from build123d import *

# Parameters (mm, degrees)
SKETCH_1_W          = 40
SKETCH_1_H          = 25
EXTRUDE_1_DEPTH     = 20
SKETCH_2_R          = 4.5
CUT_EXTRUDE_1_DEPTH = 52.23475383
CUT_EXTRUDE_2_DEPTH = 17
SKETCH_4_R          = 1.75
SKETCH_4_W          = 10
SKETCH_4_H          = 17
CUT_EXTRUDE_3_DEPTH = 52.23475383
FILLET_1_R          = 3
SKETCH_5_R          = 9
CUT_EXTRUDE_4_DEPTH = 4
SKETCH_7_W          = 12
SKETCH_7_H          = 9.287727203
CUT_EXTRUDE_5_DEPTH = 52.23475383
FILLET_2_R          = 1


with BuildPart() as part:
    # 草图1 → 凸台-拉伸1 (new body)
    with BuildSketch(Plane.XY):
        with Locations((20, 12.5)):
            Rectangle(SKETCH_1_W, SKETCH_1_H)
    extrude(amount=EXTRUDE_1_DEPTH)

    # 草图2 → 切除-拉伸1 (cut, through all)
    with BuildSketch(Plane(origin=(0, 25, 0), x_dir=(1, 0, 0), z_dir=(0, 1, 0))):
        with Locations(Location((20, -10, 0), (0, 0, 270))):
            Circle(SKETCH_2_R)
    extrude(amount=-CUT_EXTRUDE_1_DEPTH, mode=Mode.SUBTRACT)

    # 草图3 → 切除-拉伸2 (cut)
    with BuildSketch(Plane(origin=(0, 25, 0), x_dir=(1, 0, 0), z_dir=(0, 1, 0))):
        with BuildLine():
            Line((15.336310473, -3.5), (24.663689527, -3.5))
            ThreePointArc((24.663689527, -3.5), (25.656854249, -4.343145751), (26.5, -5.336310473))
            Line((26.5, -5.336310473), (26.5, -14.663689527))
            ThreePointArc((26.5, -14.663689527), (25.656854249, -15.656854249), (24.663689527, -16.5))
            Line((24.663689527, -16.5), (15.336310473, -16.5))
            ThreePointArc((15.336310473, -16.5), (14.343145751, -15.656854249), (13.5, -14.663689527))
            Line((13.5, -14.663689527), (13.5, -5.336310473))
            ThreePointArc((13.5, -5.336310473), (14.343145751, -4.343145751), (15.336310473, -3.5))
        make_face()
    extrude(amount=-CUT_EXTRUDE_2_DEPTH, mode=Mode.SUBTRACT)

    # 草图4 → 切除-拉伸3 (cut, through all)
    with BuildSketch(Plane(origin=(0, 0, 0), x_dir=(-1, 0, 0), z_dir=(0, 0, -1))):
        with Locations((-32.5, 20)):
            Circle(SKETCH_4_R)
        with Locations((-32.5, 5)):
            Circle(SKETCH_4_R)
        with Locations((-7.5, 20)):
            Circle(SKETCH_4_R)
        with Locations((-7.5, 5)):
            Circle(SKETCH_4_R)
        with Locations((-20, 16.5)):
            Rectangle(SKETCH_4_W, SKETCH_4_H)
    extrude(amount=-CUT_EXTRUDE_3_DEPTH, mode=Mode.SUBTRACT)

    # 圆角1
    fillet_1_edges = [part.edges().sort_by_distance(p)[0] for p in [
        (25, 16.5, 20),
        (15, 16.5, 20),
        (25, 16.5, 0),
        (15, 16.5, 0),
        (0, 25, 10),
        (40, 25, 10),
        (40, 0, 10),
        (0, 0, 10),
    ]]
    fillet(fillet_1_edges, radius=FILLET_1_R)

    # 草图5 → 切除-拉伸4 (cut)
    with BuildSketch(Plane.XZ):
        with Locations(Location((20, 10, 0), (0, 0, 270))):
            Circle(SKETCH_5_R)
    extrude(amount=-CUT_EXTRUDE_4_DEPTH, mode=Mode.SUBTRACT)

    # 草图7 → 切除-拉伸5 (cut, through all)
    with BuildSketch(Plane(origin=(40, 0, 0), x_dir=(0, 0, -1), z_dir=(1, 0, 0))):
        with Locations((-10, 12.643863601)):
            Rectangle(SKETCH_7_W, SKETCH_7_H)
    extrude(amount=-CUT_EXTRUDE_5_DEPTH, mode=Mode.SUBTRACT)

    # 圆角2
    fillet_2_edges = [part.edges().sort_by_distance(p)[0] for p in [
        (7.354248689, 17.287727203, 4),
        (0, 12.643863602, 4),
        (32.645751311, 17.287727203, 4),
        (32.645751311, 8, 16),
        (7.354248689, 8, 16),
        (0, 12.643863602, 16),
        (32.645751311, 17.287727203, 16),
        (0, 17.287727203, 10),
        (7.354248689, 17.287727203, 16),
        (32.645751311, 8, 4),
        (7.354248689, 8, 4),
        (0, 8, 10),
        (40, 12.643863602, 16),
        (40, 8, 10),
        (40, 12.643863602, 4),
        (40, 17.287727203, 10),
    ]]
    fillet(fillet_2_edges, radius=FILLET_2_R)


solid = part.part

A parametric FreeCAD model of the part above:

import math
import FreeCAD as App
import Part
import Sketcher
from FreeCAD import Vector


def edges_at(feature, points):
    """Names of the edges that pass closest to the given points."""
    edges = feature.Shape.Edges
    near = lambda p: min(range(len(edges)), key=lambda i: edges[i].distToShape(Part.Vertex(*p))[0])
    return sorted({f"Edge{near(p) + 1}" for p in points})

doc = App.newDocument("Part")
body = doc.addObject("PartDesign::Body", "Body")

sketch1 = body.newObject("Sketcher::SketchObject", "Sketch")
sketch1.AttachmentSupport = (doc.getObject("XY_Plane"), [""])
sketch1.MapMode = "FlatFace"
sketch1.addGeometry(Part.LineSegment(Vector(0, 25, 0), Vector(0, 0, 0)), False)
sketch1.addGeometry(Part.LineSegment(Vector(0, 0, 0), Vector(40, 0, 0)), False)
sketch1.addGeometry(Part.LineSegment(Vector(40, 0, 0), Vector(40, 25, 0)), False)
sketch1.addGeometry(Part.LineSegment(Vector(40, 25, 0), Vector(0, 25, 0)), False)
sketch1.addConstraint(Sketcher.Constraint("Coincident", 0, 2, 1, 1))
sketch1.addConstraint(Sketcher.Constraint("Coincident", 1, 2, 2, 1))
sketch1.addConstraint(Sketcher.Constraint("Coincident", 2, 2, 3, 1))
sketch1.addConstraint(Sketcher.Constraint("Coincident", 3, 2, 0, 1))
sketch1.addConstraint(Sketcher.Constraint("Vertical", 0))
sketch1.addConstraint(Sketcher.Constraint("Horizontal", 1))
sketch1.addConstraint(Sketcher.Constraint("Vertical", 2))
sketch1.addConstraint(Sketcher.Constraint("Horizontal", 3))
sketch1.addConstraint(Sketcher.Constraint("Coincident", 0, 2, -1, 1))
sketch1.addConstraint(Sketcher.Constraint("DistanceX", 1, 1, 1, 2, 40.0))
sketch1.addConstraint(Sketcher.Constraint("DistanceY", 0, 2, 0, 1, 25.0))
pad1 = body.newObject("PartDesign::Pad", "Pad")
pad1.Profile = sketch1
pad1.Length = 20

sketch2 = body.newObject("Sketcher::SketchObject", "Sketch001")
sketch2.AttachmentSupport = (doc.getObject("XZ_Plane"), [""])
sketch2.MapMode = "FlatFace"
sketch2.AttachmentOffset = App.Placement(Vector(0, 0, -25), App.Rotation())
sketch2.addGeometry(Part.Circle(Vector(20, 10, 0), Vector(0, 0, 1), 4.5), False)
sketch2.addConstraint(Sketcher.Constraint("Diameter", 0, 9.0))
sketch2.addConstraint(Sketcher.Constraint("DistanceX", -1, 1, 0, 3, 20.0))
sketch2.addConstraint(Sketcher.Constraint("DistanceY", -1, 1, 0, 3, 10.0))
pocket1 = body.newObject("PartDesign::Pocket", "Pocket")
pocket1.Profile = sketch2
pocket1.Type = "ThroughAll"
pocket1.Reversed = True

sketch3 = body.newObject("Sketcher::SketchObject", "Sketch002")
sketch3.AttachmentSupport = (doc.getObject("XZ_Plane"), [""])
sketch3.MapMode = "FlatFace"
sketch3.AttachmentOffset = App.Placement(Vector(0, 0, -25), App.Rotation())
sketch3.addGeometry(Part.LineSegment(Vector(24.7, 3.5, 0), Vector(15.3, 3.5, 0)), False)
sketch3.addGeometry(Part.ArcOfCircle(Part.Circle(Vector(20, 10, 0), Vector(0, 0, 1), 8), math.radians(-144.34), math.radians(-125.66)), False)
sketch3.addGeometry(Part.LineSegment(Vector(13.5, 5.3, 0), Vector(13.5, 14.7, 0)), False)
sketch3.addGeometry(Part.ArcOfCircle(Part.Circle(Vector(20, 10, 0), Vector(0, 0, 1), 8), math.radians(125.66), math.radians(144.34)), False)
sketch3.addGeometry(Part.LineSegment(Vector(15.3, 16.5, 0), Vector(24.7, 16.5, 0)), False)
sketch3.addGeometry(Part.ArcOfCircle(Part.Circle(Vector(20, 10, 0), Vector(0, 0, 1), 8), math.radians(35.66), math.radians(54.34)), False)
sketch3.addGeometry(Part.LineSegment(Vector(26.5, 14.7, 0), Vector(26.5, 5.3, 0)), False)
sketch3.addGeometry(Part.ArcOfCircle(Part.Circle(Vector(20, 10, 0), Vector(0, 0, 1), 8), math.radians(-54.34), math.radians(-35.66)), False)
sketch3.addConstraint(Sketcher.Constraint("Coincident", 0, 2, 1, 2))
sketch3.addConstraint(Sketcher.Constraint("Coincident", 1, 1, 2, 1))
sketch3.addConstraint(Sketcher.Constraint("Coincident", 2, 2, 3, 2))
sketch3.addConstraint(Sketcher.Constraint("Coincident", 3, 1, 4, 1))
sketch3.addConstraint(Sketcher.Constraint("Coincident", 4, 2, 5, 2))
sketch3.addConstraint(Sketcher.Constraint("Coincident", 5, 1, 6, 1))
sketch3.addConstraint(Sketcher.Constraint("Coincident", 6, 2, 7, 2))
sketch3.addConstraint(Sketcher.Constraint("Coincident", 7, 1, 0, 1))
sketch3.addConstraint(Sketcher.Constraint("Horizontal", 0))
sketch3.addConstraint(Sketcher.Constraint("Vertical", 2))
sketch3.addConstraint(Sketcher.Constraint("Horizontal", 4))
sketch3.addConstraint(Sketcher.Constraint("Vertical", 6))
sketch3.addConstraint(Sketcher.Constraint("Coincident", 3, 3, 1, 3))
sketch3.addConstraint(Sketcher.Constraint("Coincident", 5, 3, 1, 3))
sketch3.addConstraint(Sketcher.Constraint("Coincident", 7, 3, 1, 3))
sketch3.addConstraint(Sketcher.Constraint("Equal", 1, 3))
sketch3.addConstraint(Sketcher.Constraint("Equal", 3, 5))
sketch3.addConstraint(Sketcher.Constraint("Equal", 5, 7))
sketch3.addConstraint(Sketcher.Constraint("Horizontal", 2, 2, 5, 1))
sketch3.addConstraint(Sketcher.Constraint("Vertical", 0, 2, 3, 1))
sketch3.addConstraint(Sketcher.Constraint("Equal", 4, 2))
sketch3.addConstraint(Sketcher.Constraint("Radius", 1, 8.0))
sketch3.addConstraint(Sketcher.Constraint("DistanceX", -1, 1, 1, 3, 20.0))
sketch3.addConstraint(Sketcher.Constraint("DistanceY", -1, 1, 1, 3, 10.0))
sketch3.addConstraint(Sketcher.Constraint("DistanceY", -1, 1, 0, 2, 3.5))
pocket2 = body.newObject("PartDesign::Pocket", "Pocket001")
pocket2.Profile = sketch3
pocket2.Length = 17
pocket2.Reversed = True

sketch4 = body.newObject("Sketcher::SketchObject", "Sketch003")
sketch4.AttachmentSupport = (doc.getObject("XY_Plane"), [""])
sketch4.MapMode = "FlatFace"
sketch4.addGeometry(Part.Circle(Vector(32.5, 20, 0), Vector(0, 0, 1), 1.8), False)
sketch4.addGeometry(Part.Circle(Vector(32.5, 5, 0), Vector(0, 0, 1), 1.8), False)
sketch4.addGeometry(Part.Circle(Vector(7.5, 20, 0), Vector(0, 0, 1), 1.8), False)
sketch4.addGeometry(Part.Circle(Vector(7.5, 5, 0), Vector(0, 0, 1), 1.8), False)
sketch4.addGeometry(Part.LineSegment(Vector(25, 25, 0), Vector(25, 8, 0)), False)
sketch4.addGeometry(Part.LineSegment(Vector(25, 8, 0), Vector(15, 8, 0)), False)
sketch4.addGeometry(Part.LineSegment(Vector(15, 8, 0), Vector(15, 25, 0)), False)
sketch4.addGeometry(Part.LineSegment(Vector(15, 25, 0), Vector(25, 25, 0)), False)
sketch4.addConstraint(Sketcher.Constraint("Coincident", 4, 2, 5, 1))
sketch4.addConstraint(Sketcher.Constraint("Coincident", 5, 2, 6, 1))
sketch4.addConstraint(Sketcher.Constraint("Coincident", 6, 2, 7, 1))
sketch4.addConstraint(Sketcher.Constraint("Coincident", 7, 2, 4, 1))
sketch4.addConstraint(Sketcher.Constraint("Vertical", 4))
sketch4.addConstraint(Sketcher.Constraint("Horizontal", 5))
sketch4.addConstraint(Sketcher.Constraint("Vertical", 6))
sketch4.addConstraint(Sketcher.Constraint("Horizontal", 7))
sketch4.addConstraint(Sketcher.Constraint("Equal", 0, 1))
sketch4.addConstraint(Sketcher.Constraint("Equal", 1, 2))
sketch4.addConstraint(Sketcher.Constraint("Equal", 2, 3))
sketch4.addConstraint(Sketcher.Constraint("Horizontal", 0, 3, 2, 3))
sketch4.addConstraint(Sketcher.Constraint("Horizontal", 1, 3, 3, 3))
sketch4.addConstraint(Sketcher.Constraint("Vertical", 0, 3, 1, 3))
sketch4.addConstraint(Sketcher.Constraint("Vertical", 2, 3, 3, 3))
sketch4.addConstraint(Sketcher.Constraint("Diameter", 0, 3.5))
sketch4.addConstraint(Sketcher.Constraint("DistanceX", 5, 2, 5, 1, 10.0))
sketch4.addConstraint(Sketcher.Constraint("DistanceY", 4, 2, 4, 1, 17.0))
sketch4.addConstraint(Sketcher.Constraint("DistanceY", -1, 1, 0, 3, 20.0))
sketch4.addConstraint(Sketcher.Constraint("DistanceY", -1, 1, 1, 3, 5.0))
sketch4.addConstraint(Sketcher.Constraint("DistanceX", -1, 1, 4, 2, 25.0))
sketch4.addConstraint(Sketcher.Constraint("DistanceY", -1, 1, 4, 2, 8.0))
sketch4.addConstraint(Sketcher.Constraint("DistanceX", 2, 3, 0, 3, 25.0))
sketch4.addConstraint(Sketcher.Constraint("DistanceX", -1, 1, 0, 3, 32.5))
pocket3 = body.newObject("PartDesign::Pocket", "Pocket002")
pocket3.Profile = sketch4
pocket3.Type = "ThroughAll"
pocket3.Reversed = True
doc.recompute()

fillet = body.newObject("PartDesign::Fillet", "Fillet")
fillet.Base = (pocket3, edges_at(pocket3, [
    (25, 16.5, 20),
    (15, 16.5, 20),
    (25, 16.5, 0),
    (15, 16.5, 0),
    (0, 25, 10),
    (40, 25, 10),
    (40, 0, 10),
    (0, 0, 10),
]))
fillet.Radius = 3

sketch5 = body.newObject("Sketcher::SketchObject", "Sketch004")
sketch5.AttachmentSupport = (doc.getObject("XZ_Plane"), [""])
sketch5.MapMode = "FlatFace"
sketch5.addGeometry(Part.Circle(Vector(20, 10, 0), Vector(0, 0, 1), 9), False)
sketch5.addConstraint(Sketcher.Constraint("Diameter", 0, 18.0))
sketch5.addConstraint(Sketcher.Constraint("DistanceX", -1, 1, 0, 3, 20.0))
sketch5.addConstraint(Sketcher.Constraint("DistanceY", -1, 1, 0, 3, 10.0))
pocket4 = body.newObject("PartDesign::Pocket", "Pocket003")
pocket4.Profile = sketch5
pocket4.Length = 4

sketch6 = body.newObject("Sketcher::SketchObject", "Sketch005")
sketch6.AttachmentSupport = (doc.getObject("YZ_Plane"), [""])
sketch6.MapMode = "FlatFace"
sketch6.AttachmentOffset = App.Placement(Vector(0, 0, 40), App.Rotation())
sketch6.addGeometry(Part.LineSegment(Vector(17, 16, 0), Vector(8, 16, 0)), False)
sketch6.addGeometry(Part.LineSegment(Vector(8, 16, 0), Vector(8, 4, 0)), False)
sketch6.addGeometry(Part.LineSegment(Vector(8, 4, 0), Vector(17, 4, 0)), False)
sketch6.addGeometry(Part.LineSegment(Vector(17, 4, 0), Vector(17, 16, 0)), False)
sketch6.addConstraint(Sketcher.Constraint("Coincident", 0, 2, 1, 1))
sketch6.addConstraint(Sketcher.Constraint("Coincident", 1, 2, 2, 1))
sketch6.addConstraint(Sketcher.Constraint("Coincident", 2, 2, 3, 1))
sketch6.addConstraint(Sketcher.Constraint("Coincident", 3, 2, 0, 1))
sketch6.addConstraint(Sketcher.Constraint("Horizontal", 0))
sketch6.addConstraint(Sketcher.Constraint("Vertical", 1))
sketch6.addConstraint(Sketcher.Constraint("Horizontal", 2))
sketch6.addConstraint(Sketcher.Constraint("Vertical", 3))
sketch6.addConstraint(Sketcher.Constraint("DistanceY", 1, 2, 1, 1, 12.0))
sketch6.addConstraint(Sketcher.Constraint("DistanceX", -1, 1, 0, 2, 8.0))
sketch6.addConstraint(Sketcher.Constraint("DistanceY", -1, 1, 0, 2, 16.0))
sketch6.addConstraint(Sketcher.Constraint("DistanceX", 0, 2, 0, 1, 9.287727))
pocket5 = body.newObject("PartDesign::Pocket", "Pocket004")
pocket5.Profile = sketch6
pocket5.Type = "ThroughAll"
doc.recompute()

fillet2 = body.newObject("PartDesign::Fillet", "Fillet001")
fillet2.Base = (pocket5, edges_at(pocket5, [
    (7.354, 17.288, 4),
    (0, 12.644, 4),
    (32.646, 17.288, 4),
    (32.646, 8, 16),
    (7.354, 8, 16),
    (0, 12.644, 16),
    (32.646, 17.288, 16),
    (0, 17.288, 10),
    (7.354, 17.288, 16),
    (32.646, 8, 4),
    (7.354, 8, 4),
    (0, 8, 10),
    (40, 12.644, 16),
    (40, 8, 10),
    (40, 12.644, 4),
    (40, 17.288, 10),
]))
fillet2.Radius = 1

doc.recompute()
